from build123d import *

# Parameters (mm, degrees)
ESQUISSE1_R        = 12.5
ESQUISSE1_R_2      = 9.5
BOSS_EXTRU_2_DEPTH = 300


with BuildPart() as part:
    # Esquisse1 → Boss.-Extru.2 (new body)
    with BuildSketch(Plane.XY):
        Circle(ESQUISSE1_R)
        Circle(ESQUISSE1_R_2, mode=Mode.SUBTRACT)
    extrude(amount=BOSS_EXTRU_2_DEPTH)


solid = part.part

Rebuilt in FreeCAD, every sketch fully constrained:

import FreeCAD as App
import Part
import Sketcher

doc = App.newDocument("Part")
body = doc.addObject("PartDesign::Body", "Body")

sketch1 = doc.addObject("Sketcher::SketchObject", "Sketch")
body.addObject(sketch1)
sketch1.AttachmentSupport = (doc.XY_Plane, [""])
sketch1.MapMode = "FlatFace"
sketch1.addGeometry(Part.Circle(App.Vector(0, 0, 0), App.Vector(0, 0, 1), 12), False)
sketch1.addGeometry(Part.Circle(App.Vector(0, 0, 0), App.Vector(0, 0, 1), 10), False)
sketch1.addConstraint(Sketcher.Constraint("Coincident", 0, 3, -1, 1))
sketch1.addConstraint(Sketcher.Constraint("Coincident", 1, 3, -1, 1))
sketch1.addConstraint(Sketcher.Constraint("Diameter", 0, 25.0))
sketch1.addConstraint(Sketcher.Constraint("Diameter", 1, 19.0))
pad1 = doc.addObject("PartDesign::Pad", "Pad")
body.addObject(pad1)
pad1.Profile = sketch1
pad1.Length = 300

doc.recompute()
